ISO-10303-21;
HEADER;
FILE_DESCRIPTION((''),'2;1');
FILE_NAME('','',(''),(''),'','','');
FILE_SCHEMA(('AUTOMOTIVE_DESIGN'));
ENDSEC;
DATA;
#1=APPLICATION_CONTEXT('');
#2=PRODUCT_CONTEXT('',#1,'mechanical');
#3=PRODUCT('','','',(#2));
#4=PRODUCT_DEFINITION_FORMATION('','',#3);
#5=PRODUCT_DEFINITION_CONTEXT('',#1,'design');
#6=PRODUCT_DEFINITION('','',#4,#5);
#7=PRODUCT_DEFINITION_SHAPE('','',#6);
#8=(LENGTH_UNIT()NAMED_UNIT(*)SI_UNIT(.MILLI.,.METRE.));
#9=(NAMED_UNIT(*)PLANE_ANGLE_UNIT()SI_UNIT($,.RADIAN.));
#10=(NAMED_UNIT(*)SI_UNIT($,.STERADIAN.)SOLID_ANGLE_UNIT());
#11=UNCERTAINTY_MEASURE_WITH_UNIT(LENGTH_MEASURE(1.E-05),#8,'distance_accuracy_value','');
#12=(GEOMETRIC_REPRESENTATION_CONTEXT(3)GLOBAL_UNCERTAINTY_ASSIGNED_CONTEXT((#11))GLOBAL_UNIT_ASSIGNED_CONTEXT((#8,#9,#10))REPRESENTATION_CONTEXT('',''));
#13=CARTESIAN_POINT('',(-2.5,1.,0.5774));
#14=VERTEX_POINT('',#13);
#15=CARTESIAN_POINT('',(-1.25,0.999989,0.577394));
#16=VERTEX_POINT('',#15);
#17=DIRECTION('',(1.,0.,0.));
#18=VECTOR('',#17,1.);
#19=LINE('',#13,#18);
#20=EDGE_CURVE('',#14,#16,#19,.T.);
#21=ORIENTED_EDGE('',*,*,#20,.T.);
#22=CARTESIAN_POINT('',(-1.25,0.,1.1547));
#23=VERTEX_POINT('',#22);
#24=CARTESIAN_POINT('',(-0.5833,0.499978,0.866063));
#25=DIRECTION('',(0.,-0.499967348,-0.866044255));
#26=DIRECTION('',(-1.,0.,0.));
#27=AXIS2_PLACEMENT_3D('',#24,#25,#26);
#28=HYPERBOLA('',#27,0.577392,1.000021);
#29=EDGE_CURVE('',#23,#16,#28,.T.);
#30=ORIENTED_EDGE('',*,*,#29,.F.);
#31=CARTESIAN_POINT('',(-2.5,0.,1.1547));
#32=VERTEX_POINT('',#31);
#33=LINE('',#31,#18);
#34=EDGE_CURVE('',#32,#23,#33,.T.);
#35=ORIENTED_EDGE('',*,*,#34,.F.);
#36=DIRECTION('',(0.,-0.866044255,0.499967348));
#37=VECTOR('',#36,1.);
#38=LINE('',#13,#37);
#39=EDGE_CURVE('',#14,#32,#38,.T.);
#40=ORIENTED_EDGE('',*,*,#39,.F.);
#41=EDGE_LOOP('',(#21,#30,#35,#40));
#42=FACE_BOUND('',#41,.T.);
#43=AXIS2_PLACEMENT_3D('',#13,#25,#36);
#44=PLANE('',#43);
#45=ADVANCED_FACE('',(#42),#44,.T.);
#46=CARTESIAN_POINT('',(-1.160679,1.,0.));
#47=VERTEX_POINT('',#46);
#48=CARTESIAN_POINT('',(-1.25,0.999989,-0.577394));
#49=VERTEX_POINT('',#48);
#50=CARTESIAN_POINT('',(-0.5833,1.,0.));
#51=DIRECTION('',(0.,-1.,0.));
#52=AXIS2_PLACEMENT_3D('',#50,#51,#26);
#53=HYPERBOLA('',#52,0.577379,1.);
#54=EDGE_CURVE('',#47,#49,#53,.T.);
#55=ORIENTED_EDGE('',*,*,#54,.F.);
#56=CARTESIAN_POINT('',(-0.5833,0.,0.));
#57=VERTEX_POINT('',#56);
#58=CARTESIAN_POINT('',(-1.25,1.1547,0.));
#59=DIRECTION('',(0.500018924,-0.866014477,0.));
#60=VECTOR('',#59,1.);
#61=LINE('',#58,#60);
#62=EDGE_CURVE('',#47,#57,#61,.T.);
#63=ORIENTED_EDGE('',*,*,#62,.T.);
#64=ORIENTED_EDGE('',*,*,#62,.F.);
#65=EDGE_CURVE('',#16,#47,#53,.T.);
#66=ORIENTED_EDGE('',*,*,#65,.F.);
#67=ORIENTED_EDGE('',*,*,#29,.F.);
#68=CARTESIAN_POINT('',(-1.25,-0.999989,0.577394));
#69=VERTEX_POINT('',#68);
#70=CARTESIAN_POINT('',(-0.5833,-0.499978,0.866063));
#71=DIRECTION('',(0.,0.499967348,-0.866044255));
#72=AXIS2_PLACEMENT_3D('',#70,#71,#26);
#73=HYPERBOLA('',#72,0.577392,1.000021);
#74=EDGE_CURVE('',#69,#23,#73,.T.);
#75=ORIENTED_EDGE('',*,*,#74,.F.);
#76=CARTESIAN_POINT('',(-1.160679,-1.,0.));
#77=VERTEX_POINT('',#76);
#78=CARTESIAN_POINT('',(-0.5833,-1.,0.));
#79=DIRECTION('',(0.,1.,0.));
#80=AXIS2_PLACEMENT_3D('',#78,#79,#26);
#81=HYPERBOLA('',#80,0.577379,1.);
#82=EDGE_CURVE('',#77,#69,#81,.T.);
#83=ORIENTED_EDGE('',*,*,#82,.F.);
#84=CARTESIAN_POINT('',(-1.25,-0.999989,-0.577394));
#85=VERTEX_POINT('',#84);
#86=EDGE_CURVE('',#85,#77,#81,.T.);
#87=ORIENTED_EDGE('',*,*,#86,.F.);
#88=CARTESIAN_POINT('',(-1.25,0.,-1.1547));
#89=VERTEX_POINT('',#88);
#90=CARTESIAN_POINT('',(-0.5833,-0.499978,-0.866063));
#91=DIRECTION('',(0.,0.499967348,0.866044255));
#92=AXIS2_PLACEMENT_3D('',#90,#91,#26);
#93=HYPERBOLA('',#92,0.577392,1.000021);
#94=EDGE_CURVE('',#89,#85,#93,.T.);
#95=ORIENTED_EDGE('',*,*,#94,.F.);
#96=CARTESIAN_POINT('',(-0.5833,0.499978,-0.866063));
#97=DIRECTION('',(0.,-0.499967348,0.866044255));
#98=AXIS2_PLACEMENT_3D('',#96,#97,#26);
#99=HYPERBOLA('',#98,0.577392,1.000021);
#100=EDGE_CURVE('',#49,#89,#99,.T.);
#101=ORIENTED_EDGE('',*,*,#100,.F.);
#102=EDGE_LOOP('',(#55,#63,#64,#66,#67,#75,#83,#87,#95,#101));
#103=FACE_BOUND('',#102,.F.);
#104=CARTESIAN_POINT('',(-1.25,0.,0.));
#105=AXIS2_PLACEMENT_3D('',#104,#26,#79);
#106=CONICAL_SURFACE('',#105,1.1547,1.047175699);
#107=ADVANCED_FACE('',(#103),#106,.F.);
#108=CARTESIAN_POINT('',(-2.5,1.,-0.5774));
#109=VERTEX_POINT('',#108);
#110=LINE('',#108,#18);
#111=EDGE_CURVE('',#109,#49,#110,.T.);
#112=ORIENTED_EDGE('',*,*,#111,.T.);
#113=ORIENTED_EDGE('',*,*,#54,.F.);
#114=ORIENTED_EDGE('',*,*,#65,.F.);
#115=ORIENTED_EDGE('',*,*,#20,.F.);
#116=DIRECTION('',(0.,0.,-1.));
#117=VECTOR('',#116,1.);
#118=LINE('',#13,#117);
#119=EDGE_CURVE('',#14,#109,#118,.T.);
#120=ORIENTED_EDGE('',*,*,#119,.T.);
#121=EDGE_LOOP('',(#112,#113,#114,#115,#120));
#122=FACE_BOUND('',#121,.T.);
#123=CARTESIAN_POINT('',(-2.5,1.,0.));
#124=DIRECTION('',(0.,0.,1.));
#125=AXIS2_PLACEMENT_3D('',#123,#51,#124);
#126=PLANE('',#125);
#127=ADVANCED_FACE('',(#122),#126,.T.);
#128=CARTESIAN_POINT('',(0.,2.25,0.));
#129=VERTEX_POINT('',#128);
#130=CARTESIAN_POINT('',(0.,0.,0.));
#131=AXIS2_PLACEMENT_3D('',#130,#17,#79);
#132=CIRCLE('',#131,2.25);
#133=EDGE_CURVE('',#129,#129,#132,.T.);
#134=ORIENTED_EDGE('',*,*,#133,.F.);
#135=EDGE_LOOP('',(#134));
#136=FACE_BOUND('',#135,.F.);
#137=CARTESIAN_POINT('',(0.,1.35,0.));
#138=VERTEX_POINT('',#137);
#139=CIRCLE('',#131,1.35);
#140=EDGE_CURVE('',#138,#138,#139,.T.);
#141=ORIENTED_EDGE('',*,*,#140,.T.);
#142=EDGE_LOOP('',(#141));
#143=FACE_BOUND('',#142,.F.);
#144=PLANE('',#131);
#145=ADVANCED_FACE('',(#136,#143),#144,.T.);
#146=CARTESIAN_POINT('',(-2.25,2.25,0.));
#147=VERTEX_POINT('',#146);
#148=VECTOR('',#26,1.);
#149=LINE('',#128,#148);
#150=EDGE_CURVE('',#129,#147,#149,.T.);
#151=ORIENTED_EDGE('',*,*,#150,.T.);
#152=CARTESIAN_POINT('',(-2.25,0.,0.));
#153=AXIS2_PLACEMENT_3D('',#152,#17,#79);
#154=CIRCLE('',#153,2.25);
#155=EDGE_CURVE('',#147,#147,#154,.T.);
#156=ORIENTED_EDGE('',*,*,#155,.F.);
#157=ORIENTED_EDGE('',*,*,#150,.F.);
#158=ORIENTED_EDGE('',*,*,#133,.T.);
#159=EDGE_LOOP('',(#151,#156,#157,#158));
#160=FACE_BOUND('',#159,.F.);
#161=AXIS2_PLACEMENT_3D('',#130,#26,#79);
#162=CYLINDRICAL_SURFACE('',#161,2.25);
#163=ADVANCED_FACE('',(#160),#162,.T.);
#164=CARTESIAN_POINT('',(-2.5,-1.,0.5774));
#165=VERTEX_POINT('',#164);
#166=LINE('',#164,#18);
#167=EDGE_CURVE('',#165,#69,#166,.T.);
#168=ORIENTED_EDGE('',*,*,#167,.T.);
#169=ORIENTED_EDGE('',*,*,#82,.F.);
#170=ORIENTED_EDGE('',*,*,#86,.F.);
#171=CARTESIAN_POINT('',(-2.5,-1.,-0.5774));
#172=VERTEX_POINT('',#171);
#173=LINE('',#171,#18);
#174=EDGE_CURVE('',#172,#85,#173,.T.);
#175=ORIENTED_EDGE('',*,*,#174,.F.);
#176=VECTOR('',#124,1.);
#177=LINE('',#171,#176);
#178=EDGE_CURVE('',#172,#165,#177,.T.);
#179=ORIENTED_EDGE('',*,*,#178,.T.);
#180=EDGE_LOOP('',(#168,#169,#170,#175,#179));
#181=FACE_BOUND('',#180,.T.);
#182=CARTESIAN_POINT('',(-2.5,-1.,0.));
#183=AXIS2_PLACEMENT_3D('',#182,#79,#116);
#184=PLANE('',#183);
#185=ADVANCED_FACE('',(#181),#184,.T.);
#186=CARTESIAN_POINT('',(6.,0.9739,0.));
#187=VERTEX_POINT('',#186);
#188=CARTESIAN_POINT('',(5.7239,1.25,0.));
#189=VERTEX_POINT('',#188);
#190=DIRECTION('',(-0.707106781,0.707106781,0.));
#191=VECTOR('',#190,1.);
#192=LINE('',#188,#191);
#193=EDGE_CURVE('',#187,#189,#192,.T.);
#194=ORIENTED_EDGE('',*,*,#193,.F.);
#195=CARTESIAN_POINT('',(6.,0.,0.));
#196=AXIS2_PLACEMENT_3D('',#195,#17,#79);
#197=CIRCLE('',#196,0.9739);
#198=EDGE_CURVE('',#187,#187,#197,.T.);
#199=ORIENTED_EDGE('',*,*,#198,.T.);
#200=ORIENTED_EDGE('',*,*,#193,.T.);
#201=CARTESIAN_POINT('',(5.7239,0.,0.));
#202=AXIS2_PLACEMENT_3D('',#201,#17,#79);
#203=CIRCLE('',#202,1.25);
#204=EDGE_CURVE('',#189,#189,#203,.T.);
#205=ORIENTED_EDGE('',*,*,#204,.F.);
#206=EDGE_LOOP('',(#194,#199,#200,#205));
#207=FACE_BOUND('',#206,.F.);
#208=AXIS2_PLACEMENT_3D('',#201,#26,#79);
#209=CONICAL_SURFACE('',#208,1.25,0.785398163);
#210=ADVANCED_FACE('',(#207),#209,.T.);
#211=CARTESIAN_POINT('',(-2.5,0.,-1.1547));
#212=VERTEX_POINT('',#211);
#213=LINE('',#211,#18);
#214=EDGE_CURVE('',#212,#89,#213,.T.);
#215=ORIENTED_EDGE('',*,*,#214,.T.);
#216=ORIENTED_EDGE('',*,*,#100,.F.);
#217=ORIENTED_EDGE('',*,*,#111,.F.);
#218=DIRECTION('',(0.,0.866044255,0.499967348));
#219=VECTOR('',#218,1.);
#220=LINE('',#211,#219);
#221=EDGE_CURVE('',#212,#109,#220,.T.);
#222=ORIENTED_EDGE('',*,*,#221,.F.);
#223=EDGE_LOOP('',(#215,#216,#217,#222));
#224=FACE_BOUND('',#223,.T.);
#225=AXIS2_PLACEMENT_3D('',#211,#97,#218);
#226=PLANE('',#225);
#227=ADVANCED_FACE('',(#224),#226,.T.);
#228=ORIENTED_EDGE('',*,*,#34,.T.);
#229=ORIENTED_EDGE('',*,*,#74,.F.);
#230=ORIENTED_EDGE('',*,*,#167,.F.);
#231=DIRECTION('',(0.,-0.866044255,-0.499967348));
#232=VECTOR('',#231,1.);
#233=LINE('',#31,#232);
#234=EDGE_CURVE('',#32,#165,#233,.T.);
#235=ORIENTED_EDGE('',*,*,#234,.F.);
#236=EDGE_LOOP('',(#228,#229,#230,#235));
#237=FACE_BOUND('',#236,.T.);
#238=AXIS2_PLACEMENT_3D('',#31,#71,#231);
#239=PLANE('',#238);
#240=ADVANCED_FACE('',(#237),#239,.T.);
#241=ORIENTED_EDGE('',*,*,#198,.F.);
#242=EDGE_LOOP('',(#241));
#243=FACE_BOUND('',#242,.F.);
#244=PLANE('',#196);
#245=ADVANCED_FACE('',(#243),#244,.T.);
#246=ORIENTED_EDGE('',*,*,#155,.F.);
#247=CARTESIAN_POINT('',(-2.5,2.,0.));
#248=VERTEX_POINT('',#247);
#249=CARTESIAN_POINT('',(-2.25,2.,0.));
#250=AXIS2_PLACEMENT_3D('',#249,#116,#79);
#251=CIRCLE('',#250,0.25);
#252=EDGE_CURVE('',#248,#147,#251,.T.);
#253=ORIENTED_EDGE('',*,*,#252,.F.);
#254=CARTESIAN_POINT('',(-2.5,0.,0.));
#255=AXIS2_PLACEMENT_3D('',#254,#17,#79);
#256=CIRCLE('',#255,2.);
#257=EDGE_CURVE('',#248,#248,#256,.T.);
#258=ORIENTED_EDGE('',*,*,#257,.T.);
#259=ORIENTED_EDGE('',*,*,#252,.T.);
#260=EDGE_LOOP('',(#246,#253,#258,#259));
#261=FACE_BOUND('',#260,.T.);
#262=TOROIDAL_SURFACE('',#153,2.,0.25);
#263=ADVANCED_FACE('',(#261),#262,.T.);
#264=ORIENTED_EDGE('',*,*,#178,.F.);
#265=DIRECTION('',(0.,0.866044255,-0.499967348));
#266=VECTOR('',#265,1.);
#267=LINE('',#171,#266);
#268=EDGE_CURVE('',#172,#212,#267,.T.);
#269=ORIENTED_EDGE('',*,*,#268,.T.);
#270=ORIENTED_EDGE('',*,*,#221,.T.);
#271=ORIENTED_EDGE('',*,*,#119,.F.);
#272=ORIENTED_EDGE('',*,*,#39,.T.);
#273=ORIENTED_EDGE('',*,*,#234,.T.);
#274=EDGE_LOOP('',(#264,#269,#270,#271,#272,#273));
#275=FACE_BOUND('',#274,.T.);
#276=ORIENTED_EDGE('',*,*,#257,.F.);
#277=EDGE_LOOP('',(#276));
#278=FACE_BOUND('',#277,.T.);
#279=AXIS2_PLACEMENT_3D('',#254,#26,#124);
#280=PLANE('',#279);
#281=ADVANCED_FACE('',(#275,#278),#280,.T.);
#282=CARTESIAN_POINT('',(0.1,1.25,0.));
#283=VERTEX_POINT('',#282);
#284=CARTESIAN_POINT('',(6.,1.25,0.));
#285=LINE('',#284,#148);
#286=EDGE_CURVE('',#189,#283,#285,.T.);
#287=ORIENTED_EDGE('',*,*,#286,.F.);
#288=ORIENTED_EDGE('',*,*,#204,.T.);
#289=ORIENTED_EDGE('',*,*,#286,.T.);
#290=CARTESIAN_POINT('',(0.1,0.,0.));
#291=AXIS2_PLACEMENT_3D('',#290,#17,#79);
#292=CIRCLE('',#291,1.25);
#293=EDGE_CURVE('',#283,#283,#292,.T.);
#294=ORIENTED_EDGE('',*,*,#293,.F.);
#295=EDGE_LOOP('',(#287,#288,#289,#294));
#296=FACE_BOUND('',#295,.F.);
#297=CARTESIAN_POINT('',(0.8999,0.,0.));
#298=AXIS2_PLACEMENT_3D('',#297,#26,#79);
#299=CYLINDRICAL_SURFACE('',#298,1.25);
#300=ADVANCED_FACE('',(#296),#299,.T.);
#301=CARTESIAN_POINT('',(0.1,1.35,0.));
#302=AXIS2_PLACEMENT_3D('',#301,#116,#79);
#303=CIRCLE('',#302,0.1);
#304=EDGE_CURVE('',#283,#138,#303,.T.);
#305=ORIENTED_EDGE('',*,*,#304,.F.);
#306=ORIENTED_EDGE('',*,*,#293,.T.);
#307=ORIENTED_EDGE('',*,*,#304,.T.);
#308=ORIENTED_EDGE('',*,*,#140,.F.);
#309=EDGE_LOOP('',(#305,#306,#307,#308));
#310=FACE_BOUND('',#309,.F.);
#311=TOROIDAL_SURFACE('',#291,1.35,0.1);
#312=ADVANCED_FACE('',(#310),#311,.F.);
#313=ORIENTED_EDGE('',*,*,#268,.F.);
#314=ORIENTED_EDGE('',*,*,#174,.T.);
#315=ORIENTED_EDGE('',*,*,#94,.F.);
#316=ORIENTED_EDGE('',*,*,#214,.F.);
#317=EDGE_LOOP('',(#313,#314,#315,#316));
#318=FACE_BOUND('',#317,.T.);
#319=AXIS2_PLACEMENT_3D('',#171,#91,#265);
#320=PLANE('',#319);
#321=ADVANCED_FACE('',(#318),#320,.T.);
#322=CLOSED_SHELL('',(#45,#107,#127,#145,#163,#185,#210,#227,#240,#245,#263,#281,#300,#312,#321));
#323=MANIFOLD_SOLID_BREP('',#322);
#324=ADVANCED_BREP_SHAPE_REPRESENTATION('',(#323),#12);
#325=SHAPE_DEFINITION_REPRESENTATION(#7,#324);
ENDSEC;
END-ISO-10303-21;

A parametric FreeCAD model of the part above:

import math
import FreeCAD as App
import Part
import Sketcher

V = App.Vector
Q = App.Units.Quantity


def edges_at(feature, points):
    """Names of the edges that pass closest to the given points."""
    edges = feature.Shape.Edges
    near = lambda p: min(range(len(edges)), key=lambda i: edges[i].distToShape(Part.Vertex(*p))[0])
    return sorted({f"Edge{near(p) + 1}" for p in points})


def add_polygon(sketch, points):
    """Adds a closed chain of lines whose ends are joined by coincident constraints."""
    first, n = sketch.GeometryCount, len(points)
    for a, b in zip(points, points[1:] + points[:1]):
        sketch.addGeometry(Part.LineSegment(App.Vector(*a, 0), App.Vector(*b, 0)), False)
    for i in range(n):
        sketch.addConstraint(Sketcher.Constraint("Coincident", first + i, 2, first + (i + 1) % n, 1))

doc = App.newDocument("Part")
body = doc.addObject("PartDesign::Body", "Body")

# Sketch on XY plane
sketch1 = body.newObject("Sketcher::SketchObject", "Sketch")
sketch1.AttachmentSupport = (doc.getObject("XY_Plane"), [""])
sketch1.MapMode = "FlatFace"
add_polygon(sketch1, [(-1.2, 1.2), (-0.6, 0), (6, 0), (6, 1.2), (0, 1.2), (0, 2.2), (-2.5, 2.2), (-2.5, 1.2)])  # lines 0-7
sketch1.addConstraint([
    Sketcher.Constraint("Horizontal", 1),
    Sketcher.Constraint("Vertical", 2),
    Sketcher.Constraint("Horizontal", 3),
    Sketcher.Constraint("Vertical", 4),
    Sketcher.Constraint("Horizontal", 5),
    Sketcher.Constraint("Vertical", 6),
    Sketcher.Constraint("Horizontal", 7),
    Sketcher.Constraint("PointOnObject", 0, 2, -1),
    Sketcher.Constraint("PointOnObject", 3, 2, -2),
    Sketcher.Constraint("Equal", 7, 2),
    Sketcher.Constraint("DistanceX", 3, 2, 3, 1, Q("6 mm")),
    Sketcher.Constraint("DistanceX", 5, 2, 5, 1, Q("2.5 mm")),
    Sketcher.Constraint("DistanceX", 7, 1, 7, 2, Q("1.25 mm")),
    Sketcher.Constraint("DistanceY", 4, 1, 4, 2, Q("1 mm")),
    Sketcher.Constraint("DistanceX", 1, 1, 1, 2, Q("6.5833 mm")),
    Sketcher.Constraint("DistanceY", 6, 2, 6, 1, Q("1.0953 mm")),
])
revolution = body.newObject("PartDesign::Revolution", "Revolution")
revolution.Profile = sketch1
revolution.ReferenceAxis = (sketch1, ["H_Axis"])
revolution.Angle = 360

# Sketch on YZ plane
sketch2 = body.newObject("Sketcher::SketchObject", "Sketch001")
sketch2.AttachmentSupport = (doc.getObject("YZ_Plane"), [""])
sketch2.MapMode = "FlatFace"
sketch2.AttachmentOffset = App.Placement(V(0, 0, -2.5), App.Rotation())
sketch2.addGeometry([
    Part.LineSegment(V(1, 0.6, 0), V(0, 1.2, 0)),  # 0
    Part.ArcOfCircle(Part.Circle(V(0, 0, 0), V(0, 0, 1), 1.2), math.radians(30), math.radians(90)),  # 1
    Part.ArcOfCircle(Part.Circle(V(0, 0, 0), V(0, 0, 1), 1.2), math.radians(90), math.radians(150)),  # 2
    Part.LineSegment(V(0, 1.2, 0), V(-1, 0.6, 0)),  # 3
    Part.ArcOfCircle(Part.Circle(V(0, 0, 0), V(0, 0, 1), 1.2), math.radians(-30), math.radians(30)),  # 4
    Part.LineSegment(V(1, 0.6, 0), V(1, -0.6, 0)),  # 5
    Part.LineSegment(V(-1, 0.6, 0), V(-1, -0.6, 0)),  # 6
    Part.ArcOfCircle(Part.Circle(V(0, 0, 0), V(0, 0, 1), 1.2), math.radians(150), math.radians(210)),  # 7
    Part.LineSegment(V(-1, -0.6, 0), V(0, -1.2, 0)),  # 8
    Part.ArcOfCircle(Part.Circle(V(0, 0, 0), V(0, 0, 1), 1.2), math.radians(-150), math.radians(-90)),  # 9
    Part.ArcOfCircle(Part.Circle(V(0, 0, 0), V(0, 0, 1), 1.2), math.radians(-90), math.radians(-30)),  # 10
    Part.LineSegment(V(0, -1.2, 0), V(1, -0.6, 0)),  # 11
], False)
sketch2.addConstraint([
    Sketcher.Constraint("Coincident", 0, 1, 1, 1),
    Sketcher.Constraint("Coincident", 1, 2, 0, 2),
    Sketcher.Constraint("Coincident", 2, 1, 3, 1),
    Sketcher.Constraint("Coincident", 3, 2, 2, 2),
    Sketcher.Constraint("Coincident", 4, 1, 5, 2),
    Sketcher.Constraint("Coincident", 5, 1, 4, 2),
    Sketcher.Constraint("Coincident", 6, 1, 7, 1),
    Sketcher.Constraint("Coincident", 7, 2, 6, 2),
    Sketcher.Constraint("Coincident", 8, 1, 9, 1),
    Sketcher.Constraint("Coincident", 9, 2, 8, 2),
    Sketcher.Constraint("Coincident", 10, 1, 11, 1),
    Sketcher.Constraint("Coincident", 11, 2, 10, 2),
    Sketcher.Constraint("Vertical", 5),
    Sketcher.Constraint("Vertical", 6),
    Sketcher.Constraint("Coincident", 1, 3, -1, 1),
    Sketcher.Constraint("Coincident", 2, 3, -1, 1),
    Sketcher.Constraint("Coincident", 4, 3, -1, 1),
    Sketcher.Constraint("Coincident", 7, 3, -1, 1),
    Sketcher.Constraint("Coincident", 9, 3, -1, 1),
    Sketcher.Constraint("Coincident", 10, 3, -1, 1),
    Sketcher.Constraint("Coincident", 2, 1, 1, 2),
    Sketcher.Constraint("Coincident", 5, 1, 0, 1),
    Sketcher.Constraint("Coincident", 6, 1, 3, 2),
    Sketcher.Constraint("Coincident", 8, 1, 7, 2),
    Sketcher.Constraint("Coincident", 10, 1, 9, 2),
    Sketcher.Constraint("PointOnObject", 1, 2, -2),
    Sketcher.Constraint("PointOnObject", 9, 2, -2),
    Sketcher.Constraint("Parallel", 0, 8),
    Sketcher.Constraint("Parallel", 3, 11),
    Sketcher.Constraint("DistanceX", -1, 1, 0, 1, Q("1 mm")),
    Sketcher.Constraint("Radius", 1, Q("1.1547 mm")),
])
pad1 = body.newObject("PartDesign::Pad", "Pad")
pad1.Profile = sketch2
pad1.Length = 1.3393
doc.recompute()

fillet = body.newObject("PartDesign::Fillet", "Fillet")
fillet.Base = (pad1, edges_at(pad1, [(-2.5, -2.25, 0)]))
fillet.Radius = 0.25
doc.recompute()

chamfer = body.newObject("PartDesign::Chamfer", "Chamfer")
chamfer.Base = (fillet, edges_at(fillet, [(6, -1.25, 0)]))
chamfer.ChamferType = "Two distances"
chamfer.Size = 0.2761
chamfer.Size2 = 0.2761
doc.recompute()

fillet2 = body.newObject("PartDesign::Fillet", "Fillet001")
fillet2.Base = (chamfer, edges_at(chamfer, [(0, -1.25, 0)]))
fillet2.Radius = 0.1

doc.recompute()
